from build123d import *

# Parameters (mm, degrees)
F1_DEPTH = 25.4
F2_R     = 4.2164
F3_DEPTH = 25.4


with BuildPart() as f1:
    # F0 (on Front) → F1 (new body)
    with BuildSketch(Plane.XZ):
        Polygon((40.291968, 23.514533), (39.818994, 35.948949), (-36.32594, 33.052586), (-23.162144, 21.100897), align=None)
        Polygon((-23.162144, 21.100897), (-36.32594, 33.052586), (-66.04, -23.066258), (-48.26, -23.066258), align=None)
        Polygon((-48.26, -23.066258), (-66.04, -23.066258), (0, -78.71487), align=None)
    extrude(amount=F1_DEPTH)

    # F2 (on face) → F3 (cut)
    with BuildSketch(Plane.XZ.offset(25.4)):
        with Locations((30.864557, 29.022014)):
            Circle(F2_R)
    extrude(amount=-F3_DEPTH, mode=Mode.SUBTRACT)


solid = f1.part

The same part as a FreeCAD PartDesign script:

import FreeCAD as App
import Part
import Sketcher

V = App.Vector
Q = App.Units.Quantity


def add_polygon(sketch, points):
    """Adds a closed chain of lines whose ends are joined by coincident constraints."""
    first, n = sketch.GeometryCount, len(points)
    for a, b in zip(points, points[1:] + points[:1]):
        sketch.addGeometry(Part.LineSegment(App.Vector(*a, 0), App.Vector(*b, 0)), False)
    for i in range(n):
        sketch.addConstraint(Sketcher.Constraint("Coincident", first + i, 2, first + (i + 1) % n, 1))

doc = App.newDocument("Part")
params = doc.addObject("Spreadsheet::Sheet", "Params")
for row, (alias, value) in enumerate([
    ("sketch1_length", "3 in"),
    ("sketch1_length2", "2 in"),
    ("sketch1_length3", "2.5 in"),
    ("sketch1_length4", "3.4 in"),
    ("sketch1_length5", "2.9 in"),
    ("pad1_length", "1 in"),
    ("sketch2_diameter", "0.332 in"),
    ("pocket1_length", "1 in"),
], start=1):
    params.set(f"A{row}", alias)
    params.set(f"B{row}", "=" + value)
    params.setAlias(f"B{row}", alias)

body = doc.addObject("PartDesign::Body", "Body")

# Sketch on XZ plane
sketch1 = body.newObject("Sketcher::SketchObject", "Sketch")
sketch1.AttachmentSupport = (doc.getObject("XZ_Plane"), [""])
sketch1.MapMode = "FlatFace"
add_polygon(sketch1, [(40.291968, 23.514533), (39.818994, 35.948949), (-36.32594, 33.052586), (-66.04, -23.066258), (0, -78.71487), (-48.26, -23.066258), (-23.162144, 21.100897)])  # lines 0-6
sketch1.addConstraint(Sketcher.Constraint("PointOnObject", 3, 2, -2))
sketch1.addConstraint(Sketcher.Constraint("Perpendicular", 0, 1))
sketch1.addConstraint(Sketcher.Constraint("Parallel", 1, 6))
sketch1.addConstraint(Sketcher.Constraint("Horizontal", 2, 2, 4, 2))
sketch1.addConstraint(Sketcher.Constraint("Equal", 2, 6))
sketch1.addConstraint(Sketcher.Constraint("Distance", 1, Q("3 in")))
sketch1.addConstraint(Sketcher.Constraint("Distance", 5, Q("2 in")))
sketch1.addConstraint(Sketcher.Constraint("Distance", 2, Q("2.5 in")))
sketch1.addConstraint(Sketcher.Constraint("Distance", 3, Q("3.4 in")))
sketch1.addConstraint(Sketcher.Constraint("Distance", 4, Q("2.9 in")))
sketch1.addConstraint(Sketcher.Constraint("DistanceX", 2, 2, -1, 1, Q("2.6 in")))
sketch1.addConstraint(Sketcher.Constraint("Distance", 0, Q("12.443408 mm")))
sketch1.addConstraint(Sketcher.Constraint("DistanceY", -1, 1, 0, 2, Q("35.948949 mm")))
sketch1.addConstraint(Sketcher.Constraint("DistanceX", 1, 2, -1, 1, Q("36.32594 mm")))
sketch1.setExpression("Constraints[12]", "Params.sketch1_length")
sketch1.setExpression("Constraints[13]", "Params.sketch1_length2")
sketch1.setExpression("Constraints[14]", "Params.sketch1_length3")
sketch1.setExpression("Constraints[15]", "Params.sketch1_length4")
sketch1.setExpression("Constraints[16]", "Params.sketch1_length5")
pad1 = body.newObject("PartDesign::Pad", "Pad")
pad1.Profile = sketch1
pad1.setExpression("Length", "Params.pad1_length")

# Sketch on XZ plane
sketch2 = body.newObject("Sketcher::SketchObject", "Sketch001")
sketch2.AttachmentSupport = (doc.getObject("XZ_Plane"), [""])
sketch2.MapMode = "FlatFace"
sketch2.AttachmentOffset = App.Placement(V(0, 0, 1 * 25.4), App.Rotation())
sketch2.addGeometry(Part.Circle(V(30.864557, 29.022014, 0), V(0, 0, 1), 4.2164), False)
sketch2.addConstraint(Sketcher.Constraint("Diameter", 0, Q("0.332 in")))
sketch2.addConstraint(Sketcher.Constraint("DistanceX", -1, 1, 0, 3, Q("30.864557 mm")))
sketch2.addConstraint(Sketcher.Constraint("DistanceY", -1, 1, 0, 3, Q("29.022014 mm")))
sketch2.setExpression("Constraints[0]", "Params.sketch2_diameter")
pocket1 = body.newObject("PartDesign::Pocket", "Pocket")
pocket1.Profile = sketch2
pocket1.setExpression("Length", "Params.pocket1_length")

doc.recompute()
